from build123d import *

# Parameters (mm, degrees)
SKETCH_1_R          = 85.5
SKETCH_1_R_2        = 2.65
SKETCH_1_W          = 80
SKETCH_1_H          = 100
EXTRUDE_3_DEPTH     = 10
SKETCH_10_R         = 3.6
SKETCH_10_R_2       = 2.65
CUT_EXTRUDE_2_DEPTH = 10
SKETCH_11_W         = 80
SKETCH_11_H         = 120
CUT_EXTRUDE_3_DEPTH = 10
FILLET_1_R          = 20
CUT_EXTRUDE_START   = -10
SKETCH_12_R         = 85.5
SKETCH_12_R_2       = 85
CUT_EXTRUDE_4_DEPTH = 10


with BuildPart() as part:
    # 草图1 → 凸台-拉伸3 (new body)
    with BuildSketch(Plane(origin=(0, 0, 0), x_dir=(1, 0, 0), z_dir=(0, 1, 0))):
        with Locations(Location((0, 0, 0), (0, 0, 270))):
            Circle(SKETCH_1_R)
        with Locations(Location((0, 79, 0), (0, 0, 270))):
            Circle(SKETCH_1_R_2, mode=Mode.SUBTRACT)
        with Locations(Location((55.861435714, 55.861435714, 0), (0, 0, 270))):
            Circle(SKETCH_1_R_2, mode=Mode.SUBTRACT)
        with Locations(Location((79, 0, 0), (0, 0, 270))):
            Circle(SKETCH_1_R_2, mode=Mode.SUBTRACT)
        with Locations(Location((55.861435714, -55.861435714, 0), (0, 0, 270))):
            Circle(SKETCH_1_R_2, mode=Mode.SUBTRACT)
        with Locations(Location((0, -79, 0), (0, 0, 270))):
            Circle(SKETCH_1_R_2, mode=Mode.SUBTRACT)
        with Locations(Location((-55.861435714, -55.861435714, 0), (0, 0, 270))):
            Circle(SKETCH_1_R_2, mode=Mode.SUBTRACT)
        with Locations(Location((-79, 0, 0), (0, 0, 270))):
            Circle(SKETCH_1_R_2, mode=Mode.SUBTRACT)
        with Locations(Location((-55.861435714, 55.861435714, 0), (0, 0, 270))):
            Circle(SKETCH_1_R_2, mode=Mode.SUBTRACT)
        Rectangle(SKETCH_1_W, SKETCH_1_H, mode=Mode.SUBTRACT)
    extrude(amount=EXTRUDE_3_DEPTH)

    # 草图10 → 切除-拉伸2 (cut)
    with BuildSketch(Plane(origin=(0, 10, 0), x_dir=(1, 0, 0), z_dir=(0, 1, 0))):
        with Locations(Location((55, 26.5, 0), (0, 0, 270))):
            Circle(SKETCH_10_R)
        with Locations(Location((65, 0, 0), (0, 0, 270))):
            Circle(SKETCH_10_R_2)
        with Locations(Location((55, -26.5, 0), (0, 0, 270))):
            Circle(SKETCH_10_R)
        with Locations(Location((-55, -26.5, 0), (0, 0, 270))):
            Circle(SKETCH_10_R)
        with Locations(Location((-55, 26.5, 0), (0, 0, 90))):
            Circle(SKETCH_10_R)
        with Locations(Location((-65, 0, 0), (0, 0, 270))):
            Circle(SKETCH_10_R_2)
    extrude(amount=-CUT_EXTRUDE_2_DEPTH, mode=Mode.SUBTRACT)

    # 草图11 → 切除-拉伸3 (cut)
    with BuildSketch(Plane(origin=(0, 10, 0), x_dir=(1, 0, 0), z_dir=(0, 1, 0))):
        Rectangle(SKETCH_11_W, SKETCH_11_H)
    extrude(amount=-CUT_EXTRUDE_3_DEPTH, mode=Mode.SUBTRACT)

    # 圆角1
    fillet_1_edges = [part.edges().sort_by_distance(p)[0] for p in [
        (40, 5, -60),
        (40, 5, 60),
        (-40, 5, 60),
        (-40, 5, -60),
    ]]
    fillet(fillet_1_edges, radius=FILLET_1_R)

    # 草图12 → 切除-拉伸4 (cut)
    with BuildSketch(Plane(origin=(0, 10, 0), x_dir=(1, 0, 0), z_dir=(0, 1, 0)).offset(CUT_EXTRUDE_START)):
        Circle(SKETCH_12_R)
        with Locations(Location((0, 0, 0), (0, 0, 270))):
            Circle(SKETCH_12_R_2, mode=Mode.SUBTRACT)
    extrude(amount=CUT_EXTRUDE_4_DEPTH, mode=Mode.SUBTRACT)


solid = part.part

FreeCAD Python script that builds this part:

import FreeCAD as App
import Part
import Sketcher
from FreeCAD import Vector
Q = App.Units.Quantity


def edges_at(feature, points):
    """Names of the edges that pass closest to the given points."""
    edges = feature.Shape.Edges
    near = lambda p: min(range(len(edges)), key=lambda i: edges[i].distToShape(Part.Vertex(*p))[0])
    return sorted({f"Edge{near(p) + 1}" for p in points})

doc = App.newDocument("Part")
body = doc.addObject("PartDesign::Body", "Body")

sketch1 = body.newObject("Sketcher::SketchObject", "Sketch")
sketch1.AttachmentSupport = (doc.getObject("XZ_Plane"), [""])
sketch1.MapMode = "FlatFace"
sketch1.addGeometry(Part.Circle(Vector(0, 0, 0), Vector(0, 0, 1), 85.5), False)
sketch1.addGeometry(Part.Circle(Vector(-55.9, -55.9, 0), Vector(0, 0, 1), 2.6), False)
sketch1.addGeometry(Part.Circle(Vector(0, -79, 0), Vector(0, 0, 1), 2.6), False)
sketch1.addGeometry(Part.Circle(Vector(-79, 0, 0), Vector(0, 0, 1), 2.6), False)
sketch1.addGeometry(Part.Circle(Vector(-55.9, 55.9, 0), Vector(0, 0, 1), 2.6), False)
sketch1.addGeometry(Part.Circle(Vector(55.9, -55.9, 0), Vector(0, 0, 1), 2.6), False)
sketch1.addGeometry(Part.Circle(Vector(79, 0, 0), Vector(0, 0, 1), 2.6), False)
sketch1.addGeometry(Part.LineSegment(Vector(40, 50, 0), Vector(-40, 50, 0)), False)
sketch1.addGeometry(Part.LineSegment(Vector(-40, 50, 0), Vector(-40, -50, 0)), False)
sketch1.addGeometry(Part.LineSegment(Vector(-40, -50, 0), Vector(40, -50, 0)), False)
sketch1.addGeometry(Part.LineSegment(Vector(40, -50, 0), Vector(40, 50, 0)), False)
sketch1.addGeometry(Part.Circle(Vector(0, 79, 0), Vector(0, 0, 1), 2.6), False)
sketch1.addGeometry(Part.Circle(Vector(55.9, 55.9, 0), Vector(0, 0, 1), 2.6), False)
sketch1.addConstraint(Sketcher.Constraint("Coincident", 7, 2, 8, 1))
sketch1.addConstraint(Sketcher.Constraint("Coincident", 8, 2, 9, 1))
sketch1.addConstraint(Sketcher.Constraint("Coincident", 9, 2, 10, 1))
sketch1.addConstraint(Sketcher.Constraint("Coincident", 10, 2, 7, 1))
sketch1.addConstraint(Sketcher.Constraint("Horizontal", 7))
sketch1.addConstraint(Sketcher.Constraint("Vertical", 8))
sketch1.addConstraint(Sketcher.Constraint("Horizontal", 9))
sketch1.addConstraint(Sketcher.Constraint("Vertical", 10))
sketch1.addConstraint(Sketcher.Constraint("Coincident", 0, 3, -1, 1))
sketch1.addConstraint(Sketcher.Constraint("Equal", 1, 2))
sketch1.addConstraint(Sketcher.Constraint("Equal", 2, 3))
sketch1.addConstraint(Sketcher.Constraint("Equal", 3, 4))
sketch1.addConstraint(Sketcher.Constraint("Equal", 4, 5))
sketch1.addConstraint(Sketcher.Constraint("Equal", 5, 6))
sketch1.addConstraint(Sketcher.Constraint("Equal", 6, 11))
sketch1.addConstraint(Sketcher.Constraint("Equal", 11, 12))
sketch1.addConstraint(Sketcher.Constraint("Symmetric", 4, 3, 5, 3, -1, 1))
sketch1.addConstraint(Sketcher.Constraint("Symmetric", 3, 3, 6, 3, -1, 1))
sketch1.addConstraint(Sketcher.Constraint("Symmetric", 2, 3, 11, 3, -1, 1))
sketch1.addConstraint(Sketcher.Constraint("Symmetric", 1, 3, 12, 3, -1, 1))
sketch1.addConstraint(Sketcher.Constraint("Symmetric", 7, 2, 9, 2, -1, 1))
sketch1.addConstraint(Sketcher.Constraint("Symmetric", 1, 3, 5, 3, -2))
sketch1.addConstraint(Sketcher.Constraint("PointOnObject", 2, 3, -2))
sketch1.addConstraint(Sketcher.Constraint("PointOnObject", 3, 3, -1))
sketch1.addConstraint(Sketcher.Constraint("Diameter", 0, Q("171 mm")))
sketch1.addConstraint(Sketcher.Constraint("Diameter", 1, Q("5.3 mm")))
sketch1.addConstraint(Sketcher.Constraint("DistanceX", 7, 2, 7, 1, Q("80 mm")))
sketch1.addConstraint(Sketcher.Constraint("DistanceY", 8, 2, 8, 1, Q("100 mm")))
sketch1.addConstraint(Sketcher.Constraint("DistanceY", 2, 3, -1, 1, Q("79 mm")))
sketch1.addConstraint(Sketcher.Constraint("DistanceX", 3, 3, -1, 1, Q("79 mm")))
sketch1.addConstraint(Sketcher.Constraint("DistanceY", 1, 3, 4, 3, Q("111.722871 mm")))
sketch1.addConstraint(Sketcher.Constraint("DistanceX", 1, 3, 5, 3, Q("111.722871 mm")))
pad1 = body.newObject("PartDesign::Pad", "Pad")
pad1.Profile = sketch1
pad1.Length = 10
pad1.Reversed = True

sketch2 = body.newObject("Sketcher::SketchObject", "Sketch001")
sketch2.AttachmentSupport = (doc.getObject("XZ_Plane"), [""])
sketch2.MapMode = "FlatFace"
sketch2.AttachmentOffset = App.Placement(Vector(0, 0, -10), App.Rotation())
sketch2.addGeometry(Part.Circle(Vector(55, -26.5, 0), Vector(0, 0, 1), 3.6), False)
sketch2.addGeometry(Part.Circle(Vector(65, 0, 0), Vector(0, 0, 1), 2.6), False)
sketch2.addGeometry(Part.Circle(Vector(55, 26.5, 0), Vector(0, 0, 1), 3.6), False)
sketch2.addGeometry(Part.Circle(Vector(-55, 26.5, 0), Vector(0, 0, 1), 3.6), False)
sketch2.addGeometry(Part.Circle(Vector(-55, -26.5, 0), Vector(0, 0, 1), 3.6), False)
sketch2.addGeometry(Part.Circle(Vector(-65, 0, 0), Vector(0, 0, 1), 2.6), False)
sketch2.addConstraint(Sketcher.Constraint("Equal", 0, 2))
sketch2.addConstraint(Sketcher.Constraint("Equal", 2, 3))
sketch2.addConstraint(Sketcher.Constraint("Equal", 3, 4))
sketch2.addConstraint(Sketcher.Constraint("Equal", 1, 5))
sketch2.addConstraint(Sketcher.Constraint("Symmetric", 0, 3, 3, 3, -1, 1))
sketch2.addConstraint(Sketcher.Constraint("Symmetric", 2, 3, 4, 3, -1, 1))
sketch2.addConstraint(Sketcher.Constraint("Symmetric", 1, 3, 5, 3, -1, 1))
sketch2.addConstraint(Sketcher.Constraint("Symmetric", 2, 3, 3, 3, -2))
sketch2.addConstraint(Sketcher.Constraint("PointOnObject", 1, 3, -1))
sketch2.addConstraint(Sketcher.Constraint("Diameter", 0, Q("7.2 mm")))
sketch2.addConstraint(Sketcher.Constraint("Diameter", 1, Q("5.3 mm")))
sketch2.addConstraint(Sketcher.Constraint("DistanceX", -1, 1, 0, 3, Q("55 mm")))
sketch2.addConstraint(Sketcher.Constraint("DistanceX", -1, 1, 1, 3, Q("65 mm")))
sketch2.addConstraint(Sketcher.Constraint("DistanceY", 0, 3, 2, 3, Q("53 mm")))
pocket1 = body.newObject("PartDesign::Pocket", "Pocket")
pocket1.Profile = sketch2
pocket1.Length = 10
pocket1.Reversed = True

sketch3 = body.newObject("Sketcher::SketchObject", "Sketch002")
sketch3.AttachmentSupport = (doc.getObject("XZ_Plane"), [""])
sketch3.MapMode = "FlatFace"
sketch3.AttachmentOffset = App.Placement(Vector(0, 0, -10), App.Rotation())
sketch3.addGeometry(Part.LineSegment(Vector(-40, -60, 0), Vector(-40, 60, 0)), False)
sketch3.addGeometry(Part.LineSegment(Vector(-40, 60, 0), Vector(40, 60, 0)), False)
sketch3.addGeometry(Part.LineSegment(Vector(40, 60, 0), Vector(40, -60, 0)), False)
sketch3.addGeometry(Part.LineSegment(Vector(40, -60, 0), Vector(-40, -60, 0)), False)
sketch3.addConstraint(Sketcher.Constraint("Coincident", 0, 2, 1, 1))
sketch3.addConstraint(Sketcher.Constraint("Coincident", 1, 2, 2, 1))
sketch3.addConstraint(Sketcher.Constraint("Coincident", 2, 2, 3, 1))
sketch3.addConstraint(Sketcher.Constraint("Coincident", 3, 2, 0, 1))
sketch3.addConstraint(Sketcher.Constraint("Vertical", 0))
sketch3.addConstraint(Sketcher.Constraint("Horizontal", 1))
sketch3.addConstraint(Sketcher.Constraint("Vertical", 2))
sketch3.addConstraint(Sketcher.Constraint("Horizontal", 3))
sketch3.addConstraint(Sketcher.Constraint("Symmetric", 0, 2, 2, 2, -1, 1))
sketch3.addConstraint(Sketcher.Constraint("DistanceX", 1, 1, 1, 2, Q("80 mm")))
sketch3.addConstraint(Sketcher.Constraint("DistanceY", 0, 1, 0, 2, Q("120 mm")))
pocket2 = body.newObject("PartDesign::Pocket", "Pocket001")
pocket2.Profile = sketch3
pocket2.Length = 10
pocket2.Reversed = True
doc.recompute()

fillet = body.newObject("PartDesign::Fillet", "Fillet")
fillet.Base = (pocket2, edges_at(pocket2, [
    (40, 5, -60),
    (40, 5, 60),
    (-40, 5, 60),
    (-40, 5, -60),
]))
fillet.Radius = 20

sketch4 = body.newObject("Sketcher::SketchObject", "Sketch003")
sketch4.AttachmentSupport = (doc.getObject("XZ_Plane"), [""])
sketch4.MapMode = "FlatFace"
sketch4.addGeometry(Part.Circle(Vector(0, 0, 0), Vector(0, 0, 1), 86), False)
sketch4.addGeometry(Part.Circle(Vector(0, 0, 0), Vector(0, 0, 1), 85), False)
sketch4.addConstraint(Sketcher.Constraint("Coincident", 0, 3, -1, 1))
sketch4.addConstraint(Sketcher.Constraint("Coincident", 1, 3, -1, 1))
sketch4.addConstraint(Sketcher.Constraint("Diameter", 0, Q("171 mm")))
sketch4.addConstraint(Sketcher.Constraint("Diameter", 1, Q("170 mm")))
pocket3 = body.newObject("PartDesign::Pocket", "Pocket002")
pocket3.Profile = sketch4
pocket3.Length = 10

doc.recompute()
